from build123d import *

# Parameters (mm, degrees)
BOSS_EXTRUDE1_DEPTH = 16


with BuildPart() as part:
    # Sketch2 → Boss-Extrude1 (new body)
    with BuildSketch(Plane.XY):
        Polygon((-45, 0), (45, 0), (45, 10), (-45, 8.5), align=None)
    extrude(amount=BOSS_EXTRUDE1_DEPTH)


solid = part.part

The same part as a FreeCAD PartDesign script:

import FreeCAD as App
import Part
import Sketcher

doc = App.newDocument("Part")
body = doc.addObject("PartDesign::Body", "Body")

# Sketch on XY plane
sketch1 = body.newObject("Sketcher::SketchObject", "Sketch")
sketch1.AttachmentSupport = (doc.getObject("XY_Plane"), [""])
sketch1.MapMode = "FlatFace"
sketch1.addGeometry([
    Part.LineSegment(App.Vector(-45, 0, 0), App.Vector(45, 0, 0)),
    Part.LineSegment(App.Vector(45, 0, 0), App.Vector(45, 10, 0)),
    Part.LineSegment(App.Vector(45, 10, 0), App.Vector(-45, 8, 0)),
    Part.LineSegment(App.Vector(-45, 8, 0), App.Vector(-45, 0, 0)),
], False)
sketch1.addConstraint([
    Sketcher.Constraint("Coincident", 0, 2, 1, 1),
    Sketcher.Constraint("Coincident", 1, 2, 2, 1),
    Sketcher.Constraint("Coincident", 2, 2, 3, 1),
    Sketcher.Constraint("Coincident", 3, 2, 0, 1),
    Sketcher.Constraint("Horizontal", 0),
    Sketcher.Constraint("Vertical", 1),
    Sketcher.Constraint("Vertical", 3),
    Sketcher.Constraint("Symmetric", 0, 2, 3, 2, -1, 1),
    Sketcher.Constraint("DistanceX", 0, 1, 0, 2, 90.0),
    Sketcher.Constraint("DistanceY", 1, 1, 1, 2, 10.0),
    Sketcher.Constraint("DistanceY", 3, 2, 3, 1, 8.5),
])
pad1 = body.newObject("PartDesign::Pad", "Pad")
pad1.Profile = sketch1
pad1.Length = 16

doc.recompute()
